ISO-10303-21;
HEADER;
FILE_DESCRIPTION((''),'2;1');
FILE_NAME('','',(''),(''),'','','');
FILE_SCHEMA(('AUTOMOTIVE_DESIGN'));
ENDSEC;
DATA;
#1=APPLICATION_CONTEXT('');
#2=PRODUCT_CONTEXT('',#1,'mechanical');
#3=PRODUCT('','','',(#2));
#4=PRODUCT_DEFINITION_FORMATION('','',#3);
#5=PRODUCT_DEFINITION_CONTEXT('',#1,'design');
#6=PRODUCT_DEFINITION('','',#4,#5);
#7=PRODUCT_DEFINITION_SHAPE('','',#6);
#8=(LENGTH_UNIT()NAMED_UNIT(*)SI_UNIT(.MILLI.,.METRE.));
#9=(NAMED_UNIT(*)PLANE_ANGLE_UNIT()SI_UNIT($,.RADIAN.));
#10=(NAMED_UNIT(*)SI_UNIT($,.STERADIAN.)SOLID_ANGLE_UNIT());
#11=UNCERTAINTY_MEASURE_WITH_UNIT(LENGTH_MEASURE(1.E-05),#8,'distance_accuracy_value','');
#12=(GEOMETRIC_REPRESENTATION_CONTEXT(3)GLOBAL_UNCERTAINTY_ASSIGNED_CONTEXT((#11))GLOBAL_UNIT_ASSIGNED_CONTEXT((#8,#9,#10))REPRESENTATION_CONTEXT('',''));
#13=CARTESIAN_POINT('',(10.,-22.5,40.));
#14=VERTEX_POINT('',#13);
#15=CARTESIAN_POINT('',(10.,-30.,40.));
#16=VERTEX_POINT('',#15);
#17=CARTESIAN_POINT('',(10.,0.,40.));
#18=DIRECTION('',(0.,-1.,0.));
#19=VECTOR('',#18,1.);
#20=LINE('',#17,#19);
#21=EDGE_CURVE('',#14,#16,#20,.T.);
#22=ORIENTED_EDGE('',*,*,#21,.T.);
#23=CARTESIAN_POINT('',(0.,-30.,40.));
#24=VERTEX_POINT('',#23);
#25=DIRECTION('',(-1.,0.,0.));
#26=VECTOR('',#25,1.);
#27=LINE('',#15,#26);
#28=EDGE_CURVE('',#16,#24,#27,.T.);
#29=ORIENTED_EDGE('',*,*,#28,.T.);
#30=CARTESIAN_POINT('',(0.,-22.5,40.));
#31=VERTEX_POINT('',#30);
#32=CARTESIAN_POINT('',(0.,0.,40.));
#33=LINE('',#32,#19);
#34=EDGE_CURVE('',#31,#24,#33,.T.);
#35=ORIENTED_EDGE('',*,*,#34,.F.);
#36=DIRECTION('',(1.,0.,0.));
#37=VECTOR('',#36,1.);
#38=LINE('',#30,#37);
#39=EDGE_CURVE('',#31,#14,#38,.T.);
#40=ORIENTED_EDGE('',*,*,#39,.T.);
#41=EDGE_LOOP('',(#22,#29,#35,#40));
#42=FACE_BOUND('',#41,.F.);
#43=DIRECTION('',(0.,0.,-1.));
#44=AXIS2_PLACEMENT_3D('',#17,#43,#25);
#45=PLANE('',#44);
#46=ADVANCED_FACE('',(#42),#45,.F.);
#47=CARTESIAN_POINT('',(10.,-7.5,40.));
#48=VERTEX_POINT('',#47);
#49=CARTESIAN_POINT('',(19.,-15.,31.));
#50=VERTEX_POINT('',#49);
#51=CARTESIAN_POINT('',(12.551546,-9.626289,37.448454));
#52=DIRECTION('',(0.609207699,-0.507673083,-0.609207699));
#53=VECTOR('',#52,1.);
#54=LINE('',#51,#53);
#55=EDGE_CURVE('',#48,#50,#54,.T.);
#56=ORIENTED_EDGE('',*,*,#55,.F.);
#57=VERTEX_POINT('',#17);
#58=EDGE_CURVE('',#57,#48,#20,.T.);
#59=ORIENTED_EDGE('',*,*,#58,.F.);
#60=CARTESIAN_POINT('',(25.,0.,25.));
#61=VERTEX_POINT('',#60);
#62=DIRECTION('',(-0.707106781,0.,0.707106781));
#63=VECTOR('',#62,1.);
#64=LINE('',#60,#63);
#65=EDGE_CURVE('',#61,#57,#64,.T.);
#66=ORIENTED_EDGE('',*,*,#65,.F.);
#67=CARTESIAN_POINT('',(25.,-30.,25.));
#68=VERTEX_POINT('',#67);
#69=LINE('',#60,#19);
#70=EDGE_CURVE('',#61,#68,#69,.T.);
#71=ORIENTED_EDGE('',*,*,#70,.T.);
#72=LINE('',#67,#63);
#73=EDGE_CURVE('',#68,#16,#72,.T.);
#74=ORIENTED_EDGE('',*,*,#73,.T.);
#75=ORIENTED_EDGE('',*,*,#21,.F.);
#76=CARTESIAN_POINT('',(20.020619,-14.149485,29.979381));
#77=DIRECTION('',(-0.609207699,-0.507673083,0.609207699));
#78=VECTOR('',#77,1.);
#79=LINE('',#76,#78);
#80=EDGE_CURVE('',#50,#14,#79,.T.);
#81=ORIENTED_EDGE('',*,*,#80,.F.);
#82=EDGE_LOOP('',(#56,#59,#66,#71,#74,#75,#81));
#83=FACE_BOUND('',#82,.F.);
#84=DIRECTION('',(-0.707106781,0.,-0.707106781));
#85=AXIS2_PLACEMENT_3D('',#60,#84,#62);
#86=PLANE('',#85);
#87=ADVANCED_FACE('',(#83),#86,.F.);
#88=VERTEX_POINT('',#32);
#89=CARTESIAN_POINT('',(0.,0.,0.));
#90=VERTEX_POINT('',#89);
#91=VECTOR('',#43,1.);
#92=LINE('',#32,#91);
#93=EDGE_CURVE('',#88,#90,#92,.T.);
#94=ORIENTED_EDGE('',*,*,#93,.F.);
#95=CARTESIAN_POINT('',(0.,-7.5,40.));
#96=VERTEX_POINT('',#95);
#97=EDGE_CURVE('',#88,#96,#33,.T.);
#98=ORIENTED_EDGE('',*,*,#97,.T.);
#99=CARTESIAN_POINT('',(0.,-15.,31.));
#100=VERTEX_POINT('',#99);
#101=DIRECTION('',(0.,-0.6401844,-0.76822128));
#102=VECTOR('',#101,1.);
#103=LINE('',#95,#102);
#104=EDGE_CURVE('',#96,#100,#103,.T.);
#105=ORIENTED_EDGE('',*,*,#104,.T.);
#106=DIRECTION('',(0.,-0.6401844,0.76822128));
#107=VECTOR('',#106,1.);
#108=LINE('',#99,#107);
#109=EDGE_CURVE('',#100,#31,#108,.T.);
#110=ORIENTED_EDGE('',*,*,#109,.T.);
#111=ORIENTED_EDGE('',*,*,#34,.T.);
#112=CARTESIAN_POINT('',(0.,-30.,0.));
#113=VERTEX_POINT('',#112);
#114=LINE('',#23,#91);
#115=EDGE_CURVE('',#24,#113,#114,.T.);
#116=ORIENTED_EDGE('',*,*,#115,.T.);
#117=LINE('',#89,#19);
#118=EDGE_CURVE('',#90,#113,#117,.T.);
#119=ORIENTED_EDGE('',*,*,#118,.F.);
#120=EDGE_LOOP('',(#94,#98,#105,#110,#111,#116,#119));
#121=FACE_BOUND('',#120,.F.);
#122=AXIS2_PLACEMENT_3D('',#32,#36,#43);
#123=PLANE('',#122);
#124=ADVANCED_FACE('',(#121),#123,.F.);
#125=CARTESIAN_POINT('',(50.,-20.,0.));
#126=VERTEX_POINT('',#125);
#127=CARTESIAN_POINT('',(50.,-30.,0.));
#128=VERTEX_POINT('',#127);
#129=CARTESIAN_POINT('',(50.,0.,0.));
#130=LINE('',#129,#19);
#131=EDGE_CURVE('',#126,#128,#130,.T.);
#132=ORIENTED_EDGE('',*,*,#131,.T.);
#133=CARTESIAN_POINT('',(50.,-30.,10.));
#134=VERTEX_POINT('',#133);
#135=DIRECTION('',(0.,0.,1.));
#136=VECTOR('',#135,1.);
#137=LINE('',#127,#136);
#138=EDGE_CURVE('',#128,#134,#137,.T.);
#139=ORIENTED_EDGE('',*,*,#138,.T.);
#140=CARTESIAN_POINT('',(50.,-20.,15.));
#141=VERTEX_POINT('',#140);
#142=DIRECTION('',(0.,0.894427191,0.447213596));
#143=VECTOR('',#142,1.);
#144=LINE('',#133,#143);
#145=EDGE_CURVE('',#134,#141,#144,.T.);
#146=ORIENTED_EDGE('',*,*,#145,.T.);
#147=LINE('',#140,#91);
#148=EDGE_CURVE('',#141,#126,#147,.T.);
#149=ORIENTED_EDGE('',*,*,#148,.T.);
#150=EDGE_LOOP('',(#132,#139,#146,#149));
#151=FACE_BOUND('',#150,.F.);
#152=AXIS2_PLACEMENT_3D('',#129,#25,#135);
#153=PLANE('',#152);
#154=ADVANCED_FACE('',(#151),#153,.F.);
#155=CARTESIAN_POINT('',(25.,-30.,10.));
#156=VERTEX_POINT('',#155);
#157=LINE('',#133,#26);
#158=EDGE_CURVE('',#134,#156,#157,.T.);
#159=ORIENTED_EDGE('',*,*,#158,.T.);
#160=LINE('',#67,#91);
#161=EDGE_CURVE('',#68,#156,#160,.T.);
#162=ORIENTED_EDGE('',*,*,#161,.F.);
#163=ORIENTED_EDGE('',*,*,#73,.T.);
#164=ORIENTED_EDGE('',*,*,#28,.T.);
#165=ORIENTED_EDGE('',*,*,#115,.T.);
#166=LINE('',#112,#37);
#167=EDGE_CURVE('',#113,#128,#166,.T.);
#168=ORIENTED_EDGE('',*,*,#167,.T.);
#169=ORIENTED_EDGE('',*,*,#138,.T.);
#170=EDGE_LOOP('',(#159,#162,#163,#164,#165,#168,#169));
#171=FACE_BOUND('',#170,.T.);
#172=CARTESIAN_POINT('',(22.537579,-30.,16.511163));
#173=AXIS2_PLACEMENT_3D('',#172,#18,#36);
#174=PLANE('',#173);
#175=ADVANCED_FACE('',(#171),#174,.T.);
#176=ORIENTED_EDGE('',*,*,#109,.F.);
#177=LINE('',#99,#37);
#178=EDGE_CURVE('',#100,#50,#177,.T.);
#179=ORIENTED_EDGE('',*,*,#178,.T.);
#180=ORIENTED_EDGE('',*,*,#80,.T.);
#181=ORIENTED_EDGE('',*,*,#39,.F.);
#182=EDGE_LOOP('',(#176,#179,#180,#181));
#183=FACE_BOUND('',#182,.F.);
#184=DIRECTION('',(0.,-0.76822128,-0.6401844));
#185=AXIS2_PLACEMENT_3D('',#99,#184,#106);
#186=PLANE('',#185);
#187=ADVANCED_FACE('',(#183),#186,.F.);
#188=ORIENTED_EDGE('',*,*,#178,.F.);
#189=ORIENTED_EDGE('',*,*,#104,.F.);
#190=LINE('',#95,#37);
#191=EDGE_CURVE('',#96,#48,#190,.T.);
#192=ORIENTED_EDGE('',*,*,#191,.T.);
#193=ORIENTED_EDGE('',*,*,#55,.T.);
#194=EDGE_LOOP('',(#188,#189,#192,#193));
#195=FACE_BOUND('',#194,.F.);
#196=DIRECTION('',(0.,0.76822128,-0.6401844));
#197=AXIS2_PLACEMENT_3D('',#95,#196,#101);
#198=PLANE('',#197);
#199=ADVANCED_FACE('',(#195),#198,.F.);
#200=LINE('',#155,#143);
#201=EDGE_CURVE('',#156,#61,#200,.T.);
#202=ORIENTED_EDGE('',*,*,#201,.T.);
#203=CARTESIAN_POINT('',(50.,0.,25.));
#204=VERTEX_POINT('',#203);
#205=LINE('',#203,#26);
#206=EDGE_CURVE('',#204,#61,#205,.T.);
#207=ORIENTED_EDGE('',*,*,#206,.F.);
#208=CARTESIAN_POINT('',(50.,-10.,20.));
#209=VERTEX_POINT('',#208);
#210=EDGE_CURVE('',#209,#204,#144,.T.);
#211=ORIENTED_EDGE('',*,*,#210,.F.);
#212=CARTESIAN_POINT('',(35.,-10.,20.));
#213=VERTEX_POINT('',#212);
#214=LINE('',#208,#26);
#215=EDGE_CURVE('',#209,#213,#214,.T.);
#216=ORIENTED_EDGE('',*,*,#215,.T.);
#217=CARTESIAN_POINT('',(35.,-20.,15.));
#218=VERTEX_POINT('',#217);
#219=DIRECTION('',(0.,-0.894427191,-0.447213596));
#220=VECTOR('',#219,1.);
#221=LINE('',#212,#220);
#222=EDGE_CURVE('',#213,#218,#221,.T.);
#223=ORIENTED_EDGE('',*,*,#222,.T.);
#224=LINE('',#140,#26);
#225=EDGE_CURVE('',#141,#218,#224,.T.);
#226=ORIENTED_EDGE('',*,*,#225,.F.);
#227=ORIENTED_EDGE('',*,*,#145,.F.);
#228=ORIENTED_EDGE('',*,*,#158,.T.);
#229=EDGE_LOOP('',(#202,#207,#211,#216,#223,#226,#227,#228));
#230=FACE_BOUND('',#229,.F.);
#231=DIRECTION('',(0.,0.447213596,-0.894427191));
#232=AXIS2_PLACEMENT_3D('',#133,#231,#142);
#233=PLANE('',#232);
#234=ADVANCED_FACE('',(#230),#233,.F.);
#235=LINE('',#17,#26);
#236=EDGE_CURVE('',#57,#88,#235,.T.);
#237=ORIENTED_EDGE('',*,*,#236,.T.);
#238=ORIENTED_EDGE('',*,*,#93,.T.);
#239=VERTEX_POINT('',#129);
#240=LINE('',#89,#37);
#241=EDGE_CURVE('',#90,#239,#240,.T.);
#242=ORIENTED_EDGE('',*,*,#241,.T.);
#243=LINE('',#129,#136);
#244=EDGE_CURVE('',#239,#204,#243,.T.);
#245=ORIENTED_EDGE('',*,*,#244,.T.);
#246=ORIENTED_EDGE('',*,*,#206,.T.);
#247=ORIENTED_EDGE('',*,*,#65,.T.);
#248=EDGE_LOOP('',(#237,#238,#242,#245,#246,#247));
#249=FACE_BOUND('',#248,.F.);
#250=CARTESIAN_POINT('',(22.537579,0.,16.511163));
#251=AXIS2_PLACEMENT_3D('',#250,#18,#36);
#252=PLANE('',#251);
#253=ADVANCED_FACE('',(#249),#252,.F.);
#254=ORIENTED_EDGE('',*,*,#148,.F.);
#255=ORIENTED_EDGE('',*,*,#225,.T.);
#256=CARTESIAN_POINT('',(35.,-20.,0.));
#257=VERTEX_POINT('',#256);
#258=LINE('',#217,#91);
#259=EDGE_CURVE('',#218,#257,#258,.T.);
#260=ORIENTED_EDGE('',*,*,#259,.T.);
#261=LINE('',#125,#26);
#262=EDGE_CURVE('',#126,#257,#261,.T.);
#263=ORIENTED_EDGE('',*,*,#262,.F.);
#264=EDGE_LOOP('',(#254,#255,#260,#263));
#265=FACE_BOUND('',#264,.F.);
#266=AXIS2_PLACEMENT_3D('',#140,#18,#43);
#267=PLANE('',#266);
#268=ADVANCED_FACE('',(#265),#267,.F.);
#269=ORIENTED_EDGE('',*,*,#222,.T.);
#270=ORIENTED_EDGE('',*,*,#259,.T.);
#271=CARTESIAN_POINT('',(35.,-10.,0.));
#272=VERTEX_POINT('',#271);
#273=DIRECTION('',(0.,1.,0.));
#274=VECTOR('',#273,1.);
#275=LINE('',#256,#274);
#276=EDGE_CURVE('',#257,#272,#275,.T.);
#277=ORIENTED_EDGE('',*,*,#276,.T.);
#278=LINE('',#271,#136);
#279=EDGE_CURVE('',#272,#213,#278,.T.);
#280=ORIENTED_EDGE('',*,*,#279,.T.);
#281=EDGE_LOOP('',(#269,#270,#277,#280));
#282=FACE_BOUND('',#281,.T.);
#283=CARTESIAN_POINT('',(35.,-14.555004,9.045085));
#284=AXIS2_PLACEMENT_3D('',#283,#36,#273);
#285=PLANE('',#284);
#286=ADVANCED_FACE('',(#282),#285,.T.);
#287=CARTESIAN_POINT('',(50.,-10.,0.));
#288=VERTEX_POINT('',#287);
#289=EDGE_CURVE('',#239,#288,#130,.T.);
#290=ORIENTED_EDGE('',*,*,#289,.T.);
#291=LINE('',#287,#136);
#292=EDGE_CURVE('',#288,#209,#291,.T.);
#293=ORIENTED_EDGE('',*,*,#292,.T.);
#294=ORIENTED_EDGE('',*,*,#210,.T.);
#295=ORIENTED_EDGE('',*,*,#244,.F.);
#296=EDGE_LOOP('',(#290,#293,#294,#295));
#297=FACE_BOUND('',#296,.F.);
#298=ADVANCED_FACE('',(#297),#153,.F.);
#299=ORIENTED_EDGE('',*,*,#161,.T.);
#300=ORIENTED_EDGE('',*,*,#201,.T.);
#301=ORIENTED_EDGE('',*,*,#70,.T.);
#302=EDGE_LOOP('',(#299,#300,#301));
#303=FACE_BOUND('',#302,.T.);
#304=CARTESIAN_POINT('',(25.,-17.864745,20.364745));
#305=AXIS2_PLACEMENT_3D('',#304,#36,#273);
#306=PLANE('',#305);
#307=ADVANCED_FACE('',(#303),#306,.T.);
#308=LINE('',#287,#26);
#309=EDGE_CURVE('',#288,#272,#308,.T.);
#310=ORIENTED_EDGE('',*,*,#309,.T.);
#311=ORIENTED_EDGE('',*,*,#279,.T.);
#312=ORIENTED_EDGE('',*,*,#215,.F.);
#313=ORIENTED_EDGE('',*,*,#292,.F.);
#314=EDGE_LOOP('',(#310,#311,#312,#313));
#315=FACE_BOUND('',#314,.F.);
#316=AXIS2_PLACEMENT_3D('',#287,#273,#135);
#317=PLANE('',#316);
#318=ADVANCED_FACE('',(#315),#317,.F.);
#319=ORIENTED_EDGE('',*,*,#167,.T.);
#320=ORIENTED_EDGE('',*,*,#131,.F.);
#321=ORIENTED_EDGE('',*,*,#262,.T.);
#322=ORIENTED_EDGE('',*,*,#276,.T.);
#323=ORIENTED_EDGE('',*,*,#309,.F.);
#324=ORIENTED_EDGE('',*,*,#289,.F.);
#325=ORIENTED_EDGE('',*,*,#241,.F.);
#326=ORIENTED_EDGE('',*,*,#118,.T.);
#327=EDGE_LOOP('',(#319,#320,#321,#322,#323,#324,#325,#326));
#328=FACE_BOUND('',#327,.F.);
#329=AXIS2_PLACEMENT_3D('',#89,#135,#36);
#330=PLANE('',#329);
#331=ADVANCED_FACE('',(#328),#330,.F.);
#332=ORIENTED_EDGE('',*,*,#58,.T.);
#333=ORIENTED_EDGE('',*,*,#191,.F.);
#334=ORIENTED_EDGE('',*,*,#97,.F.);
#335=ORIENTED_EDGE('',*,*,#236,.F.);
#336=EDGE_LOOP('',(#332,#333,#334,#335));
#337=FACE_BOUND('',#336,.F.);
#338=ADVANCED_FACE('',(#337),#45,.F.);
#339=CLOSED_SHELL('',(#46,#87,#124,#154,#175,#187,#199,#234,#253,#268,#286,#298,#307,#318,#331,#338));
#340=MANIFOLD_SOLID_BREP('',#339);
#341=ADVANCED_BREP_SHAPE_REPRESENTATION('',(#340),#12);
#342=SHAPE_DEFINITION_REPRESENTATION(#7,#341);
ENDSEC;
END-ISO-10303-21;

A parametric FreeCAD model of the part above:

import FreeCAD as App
import Part
import Sketcher
from FreeCAD import Vector
Q = App.Units.Quantity


def add_polygon(sketch, points):
    """Adds a closed chain of lines whose ends are joined by coincident constraints."""
    first, n = sketch.GeometryCount, len(points)
    for a, b in zip(points, points[1:] + points[:1]):
        sketch.addGeometry(Part.LineSegment(App.Vector(*a, 0), App.Vector(*b, 0)), False)
    for i in range(n):
        sketch.addConstraint(Sketcher.Constraint("Coincident", first + i, 2, first + (i + 1) % n, 1))

doc = App.newDocument("Part")
params = doc.addObject("Spreadsheet::Sheet", "Params")
for row, (alias, value) in enumerate([
    ("sketch1_width", "50 mm"),
    ("sketch1_width2", "25 mm"),
    ("sketch1_width3", "10 mm"),
    ("sketch1_height", "40 mm"),
    ("pad1_length", "30 mm"),
    ("sketch2_width", "15 mm"),
    ("sketch3_width", "30 mm"),
    ("sketch3_height", "15 mm"),
    ("pocket2_length", "25 mm"),
    ("sketch4_width", "10 mm"),
    ("sketch4_height", "20 mm"),
    ("sketch4_height2", "15 mm"),
    ("pocket3_length", "15 mm"),
], start=1):
    params.set(f"A{row}", alias)
    params.set(f"B{row}", "=" + value)
    params.setAlias(f"B{row}", alias)

body = doc.addObject("PartDesign::Body", "Body")

# Sketch on XZ plane
sketch1 = body.newObject("Sketcher::SketchObject", "Sketch")
sketch1.AttachmentSupport = (doc.getObject("XZ_Plane"), [""])
sketch1.MapMode = "FlatFace"
add_polygon(sketch1, [(0, 40), (0, 0), (50, 0), (50, 25), (25, 25), (10, 40)])  # lines 0-5
sketch1.addConstraint(Sketcher.Constraint("Vertical", 0))
sketch1.addConstraint(Sketcher.Constraint("Horizontal", 1))
sketch1.addConstraint(Sketcher.Constraint("Vertical", 2))
sketch1.addConstraint(Sketcher.Constraint("Horizontal", 3))
sketch1.addConstraint(Sketcher.Constraint("Horizontal", 5))
sketch1.addConstraint(Sketcher.Constraint("Coincident", 0, 2, -1, 1))
sketch1.addConstraint(Sketcher.Constraint("Equal", 3, 2))
sketch1.addConstraint(Sketcher.Constraint("DistanceX", 1, 1, 1, 2, Q("50 mm")))
sketch1.addConstraint(Sketcher.Constraint("DistanceX", 3, 2, 3, 1, Q("25 mm")))
sketch1.addConstraint(Sketcher.Constraint("DistanceX", 5, 2, 5, 1, Q("10 mm")))
sketch1.addConstraint(Sketcher.Constraint("DistanceY", 0, 2, 0, 1, Q("40 mm")))
sketch1.setExpression("Constraints[13]", "Params.sketch1_width")
sketch1.setExpression("Constraints[14]", "Params.sketch1_width2")
sketch1.setExpression("Constraints[15]", "Params.sketch1_width3")
sketch1.setExpression("Constraints[16]", "Params.sketch1_height")
pad1 = body.newObject("PartDesign::Pad", "Pad")
pad1.Profile = sketch1
pad1.setExpression("Length", "Params.pad1_length")

# Sketch on YZ plane
sketch2 = body.newObject("Sketcher::SketchObject", "Sketch001")
sketch2.AttachmentSupport = (doc.getObject("YZ_Plane"), [""])
sketch2.MapMode = "FlatFace"
add_polygon(sketch2, [(-8, 40), (-15, 31), (-22, 40)])  # lines 0-2
sketch2.addConstraint(Sketcher.Constraint("Horizontal", 2))
sketch2.addConstraint(Sketcher.Constraint("Equal", 0, 1))
sketch2.addConstraint(Sketcher.Constraint("DistanceX", 2, 1, 2, 2, Q("15 mm")))
sketch2.addConstraint(Sketcher.Constraint("DistanceX", 0, 2, -1, 1, Q("15 mm")))
sketch2.addConstraint(Sketcher.Constraint("DistanceY", -1, 1, 0, 2, Q("31 mm")))
sketch2.addConstraint(Sketcher.Constraint("DistanceY", -1, 1, 1, 2, Q("40 mm")))
sketch2.setExpression("Constraints[5]", "Params.sketch2_width")
pocket1 = body.newObject("PartDesign::Pocket", "Pocket")
pocket1.Profile = sketch2
pocket1.Type = "ThroughAll"
pocket1.Reversed = True

# Sketch on YZ plane
sketch3 = body.newObject("Sketcher::SketchObject", "Sketch002")
sketch3.AttachmentSupport = (doc.getObject("YZ_Plane"), [""])
sketch3.MapMode = "FlatFace"
sketch3.AttachmentOffset = App.Placement(Vector(0, 0, 50), App.Rotation())
add_polygon(sketch3, [(0, 25), (-30, 25), (-30, 10)])  # lines 0-2
sketch3.addConstraint(Sketcher.Constraint("Horizontal", 0))
sketch3.addConstraint(Sketcher.Constraint("Vertical", 1))
sketch3.addConstraint(Sketcher.Constraint("PointOnObject", 2, 2, -2))
sketch3.addConstraint(Sketcher.Constraint("DistanceX", 0, 2, 0, 1, Q("30 mm")))
sketch3.addConstraint(Sketcher.Constraint("DistanceY", 1, 2, 1, 1, Q("15 mm")))
sketch3.addConstraint(Sketcher.Constraint("DistanceY", -1, 1, 0, 2, Q("25 mm")))
sketch3.setExpression("Constraints[6]", "Params.sketch3_width")
sketch3.setExpression("Constraints[7]", "Params.sketch3_height")
pocket2 = body.newObject("PartDesign::Pocket", "Pocket001")
pocket2.Profile = sketch3
pocket2.setExpression("Length", "Params.pocket2_length")

# Sketch on YZ plane
sketch4 = body.newObject("Sketcher::SketchObject", "Sketch003")
sketch4.AttachmentSupport = (doc.getObject("YZ_Plane"), [""])
sketch4.MapMode = "FlatFace"
sketch4.AttachmentOffset = App.Placement(Vector(0, 0, 50), App.Rotation())
add_polygon(sketch4, [(-10, 0), (-10, 20), (-20, 15), (-20, 0)])  # lines 0-3
sketch4.addConstraint(Sketcher.Constraint("Vertical", 0))
sketch4.addConstraint(Sketcher.Constraint("Vertical", 2))
sketch4.addConstraint(Sketcher.Constraint("Horizontal", 3))
sketch4.addConstraint(Sketcher.Constraint("PointOnObject", 2, 2, -1))
sketch4.addConstraint(Sketcher.Constraint("DistanceX", 3, 1, 3, 2, Q("10 mm")))
sketch4.addConstraint(Sketcher.Constraint("DistanceY", 0, 1, 0, 2, Q("20 mm")))
sketch4.addConstraint(Sketcher.Constraint("DistanceY", 2, 2, 2, 1, Q("15 mm")))
sketch4.addConstraint(Sketcher.Constraint("DistanceX", 0, 2, -1, 1, Q("10 mm")))
sketch4.setExpression("Constraints[8]", "Params.sketch4_width")
sketch4.setExpression("Constraints[9]", "Params.sketch4_height")
sketch4.setExpression("Constraints[10]", "Params.sketch4_height2")
pocket3 = body.newObject("PartDesign::Pocket", "Pocket002")
pocket3.Profile = sketch4
pocket3.setExpression("Length", "Params.pocket3_length")

doc.recompute()
